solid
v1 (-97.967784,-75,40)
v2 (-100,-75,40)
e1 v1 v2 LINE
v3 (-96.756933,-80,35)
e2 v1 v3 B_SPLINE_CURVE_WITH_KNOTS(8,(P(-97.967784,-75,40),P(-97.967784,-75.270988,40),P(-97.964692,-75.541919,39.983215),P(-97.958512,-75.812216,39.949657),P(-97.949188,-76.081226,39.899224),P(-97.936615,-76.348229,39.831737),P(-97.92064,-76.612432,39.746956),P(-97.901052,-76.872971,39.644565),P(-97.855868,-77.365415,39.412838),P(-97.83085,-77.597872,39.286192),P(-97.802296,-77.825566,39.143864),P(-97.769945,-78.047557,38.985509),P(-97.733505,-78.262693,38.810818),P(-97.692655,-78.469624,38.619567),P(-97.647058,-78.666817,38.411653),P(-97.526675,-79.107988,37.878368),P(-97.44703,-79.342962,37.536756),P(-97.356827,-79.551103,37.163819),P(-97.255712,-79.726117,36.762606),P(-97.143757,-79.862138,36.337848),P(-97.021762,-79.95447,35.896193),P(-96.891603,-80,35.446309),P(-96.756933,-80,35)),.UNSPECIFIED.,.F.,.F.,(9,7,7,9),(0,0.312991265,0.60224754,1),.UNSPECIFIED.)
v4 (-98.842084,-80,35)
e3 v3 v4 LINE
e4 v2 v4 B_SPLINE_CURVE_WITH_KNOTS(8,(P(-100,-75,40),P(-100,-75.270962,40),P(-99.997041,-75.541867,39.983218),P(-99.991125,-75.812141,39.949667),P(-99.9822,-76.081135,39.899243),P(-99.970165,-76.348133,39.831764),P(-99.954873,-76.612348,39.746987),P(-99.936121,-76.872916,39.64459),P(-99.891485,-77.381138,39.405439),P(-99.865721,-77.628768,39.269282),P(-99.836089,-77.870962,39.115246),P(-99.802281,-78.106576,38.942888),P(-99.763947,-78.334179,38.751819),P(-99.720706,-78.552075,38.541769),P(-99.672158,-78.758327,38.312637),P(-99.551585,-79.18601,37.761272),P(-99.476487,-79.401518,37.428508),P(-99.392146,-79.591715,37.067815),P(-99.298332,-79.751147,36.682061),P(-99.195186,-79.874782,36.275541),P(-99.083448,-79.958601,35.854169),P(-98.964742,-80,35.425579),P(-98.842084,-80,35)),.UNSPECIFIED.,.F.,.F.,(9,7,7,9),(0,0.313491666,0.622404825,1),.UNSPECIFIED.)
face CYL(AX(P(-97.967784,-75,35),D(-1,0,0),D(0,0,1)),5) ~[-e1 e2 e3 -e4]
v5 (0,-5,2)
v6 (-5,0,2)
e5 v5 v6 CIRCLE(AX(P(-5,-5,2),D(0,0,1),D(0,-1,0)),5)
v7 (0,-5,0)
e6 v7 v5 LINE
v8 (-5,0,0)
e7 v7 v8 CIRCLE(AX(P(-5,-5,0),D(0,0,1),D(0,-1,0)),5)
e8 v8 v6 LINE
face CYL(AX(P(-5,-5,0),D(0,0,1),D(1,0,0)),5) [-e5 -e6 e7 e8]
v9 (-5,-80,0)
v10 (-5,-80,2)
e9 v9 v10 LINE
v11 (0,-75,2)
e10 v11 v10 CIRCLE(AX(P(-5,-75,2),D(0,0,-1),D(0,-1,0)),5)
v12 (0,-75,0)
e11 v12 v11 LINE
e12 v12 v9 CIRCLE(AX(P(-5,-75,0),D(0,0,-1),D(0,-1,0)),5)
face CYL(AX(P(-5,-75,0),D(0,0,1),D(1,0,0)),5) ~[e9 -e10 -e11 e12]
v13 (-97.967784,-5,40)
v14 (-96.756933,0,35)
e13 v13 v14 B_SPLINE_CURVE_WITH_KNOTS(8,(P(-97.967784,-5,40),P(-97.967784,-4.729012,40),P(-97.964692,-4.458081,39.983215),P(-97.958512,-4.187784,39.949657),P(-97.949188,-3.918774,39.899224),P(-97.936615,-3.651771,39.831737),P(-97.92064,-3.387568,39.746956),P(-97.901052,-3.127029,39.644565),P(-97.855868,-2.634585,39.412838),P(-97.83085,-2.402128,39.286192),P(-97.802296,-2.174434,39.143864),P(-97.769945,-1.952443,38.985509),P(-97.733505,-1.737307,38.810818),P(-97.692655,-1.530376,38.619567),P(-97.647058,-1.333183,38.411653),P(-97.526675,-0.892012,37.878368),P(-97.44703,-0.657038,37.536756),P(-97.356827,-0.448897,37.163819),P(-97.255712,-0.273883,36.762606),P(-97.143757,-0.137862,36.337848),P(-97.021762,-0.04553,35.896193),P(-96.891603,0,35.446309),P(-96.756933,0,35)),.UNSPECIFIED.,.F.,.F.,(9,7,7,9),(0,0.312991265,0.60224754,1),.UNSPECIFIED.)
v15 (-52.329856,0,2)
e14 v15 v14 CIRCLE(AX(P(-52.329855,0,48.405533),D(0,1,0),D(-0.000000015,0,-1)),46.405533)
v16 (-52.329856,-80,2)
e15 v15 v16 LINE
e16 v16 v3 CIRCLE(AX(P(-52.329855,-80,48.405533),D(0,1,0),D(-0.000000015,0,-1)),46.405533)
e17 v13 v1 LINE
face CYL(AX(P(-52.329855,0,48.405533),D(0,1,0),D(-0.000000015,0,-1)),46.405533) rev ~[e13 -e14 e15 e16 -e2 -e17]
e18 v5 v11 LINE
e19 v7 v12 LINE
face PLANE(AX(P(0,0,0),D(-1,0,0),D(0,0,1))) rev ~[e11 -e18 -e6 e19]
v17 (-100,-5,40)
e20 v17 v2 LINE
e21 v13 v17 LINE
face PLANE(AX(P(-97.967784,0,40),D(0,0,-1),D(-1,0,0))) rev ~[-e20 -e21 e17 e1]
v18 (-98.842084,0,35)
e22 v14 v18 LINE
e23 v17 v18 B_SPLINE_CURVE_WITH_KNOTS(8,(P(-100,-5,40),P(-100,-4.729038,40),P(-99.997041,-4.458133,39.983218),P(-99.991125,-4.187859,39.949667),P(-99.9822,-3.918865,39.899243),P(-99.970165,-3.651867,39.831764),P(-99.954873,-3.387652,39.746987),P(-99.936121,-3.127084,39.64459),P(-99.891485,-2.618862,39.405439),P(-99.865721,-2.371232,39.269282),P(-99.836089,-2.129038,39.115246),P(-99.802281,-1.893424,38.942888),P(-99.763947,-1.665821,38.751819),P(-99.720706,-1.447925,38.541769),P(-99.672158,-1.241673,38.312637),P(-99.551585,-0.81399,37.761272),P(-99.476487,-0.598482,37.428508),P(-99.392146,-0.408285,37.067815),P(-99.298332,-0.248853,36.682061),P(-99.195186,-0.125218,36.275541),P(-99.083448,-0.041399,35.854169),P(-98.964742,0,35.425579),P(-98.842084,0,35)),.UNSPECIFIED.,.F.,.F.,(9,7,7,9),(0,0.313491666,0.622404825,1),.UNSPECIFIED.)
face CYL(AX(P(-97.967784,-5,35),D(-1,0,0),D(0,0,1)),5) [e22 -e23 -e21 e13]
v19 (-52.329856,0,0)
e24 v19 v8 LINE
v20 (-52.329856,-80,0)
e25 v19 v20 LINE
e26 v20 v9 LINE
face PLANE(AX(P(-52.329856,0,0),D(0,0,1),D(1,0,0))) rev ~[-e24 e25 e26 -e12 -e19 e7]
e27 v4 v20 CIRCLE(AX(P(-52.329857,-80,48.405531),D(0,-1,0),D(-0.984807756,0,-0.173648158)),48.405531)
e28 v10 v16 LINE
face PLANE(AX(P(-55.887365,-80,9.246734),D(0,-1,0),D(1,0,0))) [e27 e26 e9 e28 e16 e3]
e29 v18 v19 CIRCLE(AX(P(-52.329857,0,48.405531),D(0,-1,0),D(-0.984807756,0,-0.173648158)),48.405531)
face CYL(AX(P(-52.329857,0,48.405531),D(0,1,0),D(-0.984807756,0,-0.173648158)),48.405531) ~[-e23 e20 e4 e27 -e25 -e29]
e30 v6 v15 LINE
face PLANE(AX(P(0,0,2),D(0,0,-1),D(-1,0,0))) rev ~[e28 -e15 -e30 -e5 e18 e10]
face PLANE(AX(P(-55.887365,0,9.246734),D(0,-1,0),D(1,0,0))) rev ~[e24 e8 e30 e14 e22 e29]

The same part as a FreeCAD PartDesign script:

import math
import FreeCAD as App
import Part
import Sketcher

V = App.Vector


def edges_at(feature, points):
    """Names of the edges that pass closest to the given points."""
    edges = feature.Shape.Edges
    near = lambda p: min(range(len(edges)), key=lambda i: edges[i].distToShape(Part.Vertex(*p))[0])
    return sorted({f"Edge{near(p) + 1}" for p in points})

doc = App.newDocument("Part")
params = doc.addObject("Spreadsheet::Sheet", "Params")
for row, (alias, value) in enumerate([
    ("sketch1_height", "2 mm"),
    ("pad1_length", "80 mm"),
    ("fillet_radius", "5 mm"),
], start=1):
    params.set(f"A{row}", alias)
    params.set(f"B{row}", "=" + value)
    params.setAlias(f"B{row}", alias)

body = doc.addObject("PartDesign::Body", "Body")

# Sketch on XZ plane
sketch1 = doc.addObject("Sketcher::SketchObject", "Sketch")
body.addObject(sketch1)
sketch1.AttachmentSupport = (doc.XZ_Plane, [""])
sketch1.MapMode = "FlatFace"
sketch1.addGeometry([
    Part.LineSegment(V(-52.3, 0, 0), V(0, 0, 0)),  # 0
    Part.LineSegment(V(0, 0, 0), V(0, 2, 0)),  # 1
    Part.LineSegment(V(0, 2, 0), V(-52.3, 2, 0)),  # 2
    Part.ArcOfCircle(Part.Circle(V(-52.3, 48.4, 0), V(0, 0, 1), 46.4), math.radians(-170), math.radians(-90)),  # 3
    Part.LineSegment(V(-98, 40, 0), V(-100, 40, 0)),  # 4
    Part.ArcOfCircle(Part.Circle(V(-52.3, 48.4, 0), V(0, 0, 1), 48.4), math.radians(-170), math.radians(-90)),  # 5
], False)
sketch1.addConstraint([
    Sketcher.Constraint("Coincident", 0, 2, 1, 1),
    Sketcher.Constraint("Coincident", 1, 2, 2, 1),
    Sketcher.Constraint("Tangent", 2, 2, 3, 2),
    Sketcher.Constraint("Coincident", 3, 1, 4, 1),
    Sketcher.Constraint("Coincident", 4, 2, 5, 1),
    Sketcher.Constraint("Tangent", 5, 2, 0, 1),
    Sketcher.Constraint("Horizontal", 0),
    Sketcher.Constraint("Vertical", 1),
    Sketcher.Constraint("Horizontal", 2),
    Sketcher.Constraint("Horizontal", 4),
    Sketcher.Constraint("Coincident", 0, 2, -1, 1),
    Sketcher.Constraint("Coincident", 5, 3, 3, 3),
    Sketcher.Constraint("DistanceY", 1, 1, 1, 2, 2.0),
    Sketcher.Constraint("DistanceY", -1, 1, 3, 1, 40.0),
    Sketcher.Constraint("DistanceX", 4, 2, -1, 1, 100.0),
    Sketcher.Constraint("Radius", 5, 48.405531),
])
sketch1.setExpression("Constraints[12]", "Params.sketch1_height")
pad1 = doc.addObject("PartDesign::Pad", "Pad")
body.addObject(pad1)
pad1.Profile = sketch1
pad1.setExpression("Length", "Params.pad1_length")
doc.recompute()

fillet = doc.addObject("PartDesign::Fillet", "Fillet")
body.addObject(fillet)
fillet.Base = (pad1, edges_at(pad1, [
    (-98.984, -80, 40),
    (-98.984, 0, 40),
    (0, -80, 1),
    (0, 0, 1),
]))
fillet.setExpression("Radius", "Params.fillet_radius")

doc.recompute()
